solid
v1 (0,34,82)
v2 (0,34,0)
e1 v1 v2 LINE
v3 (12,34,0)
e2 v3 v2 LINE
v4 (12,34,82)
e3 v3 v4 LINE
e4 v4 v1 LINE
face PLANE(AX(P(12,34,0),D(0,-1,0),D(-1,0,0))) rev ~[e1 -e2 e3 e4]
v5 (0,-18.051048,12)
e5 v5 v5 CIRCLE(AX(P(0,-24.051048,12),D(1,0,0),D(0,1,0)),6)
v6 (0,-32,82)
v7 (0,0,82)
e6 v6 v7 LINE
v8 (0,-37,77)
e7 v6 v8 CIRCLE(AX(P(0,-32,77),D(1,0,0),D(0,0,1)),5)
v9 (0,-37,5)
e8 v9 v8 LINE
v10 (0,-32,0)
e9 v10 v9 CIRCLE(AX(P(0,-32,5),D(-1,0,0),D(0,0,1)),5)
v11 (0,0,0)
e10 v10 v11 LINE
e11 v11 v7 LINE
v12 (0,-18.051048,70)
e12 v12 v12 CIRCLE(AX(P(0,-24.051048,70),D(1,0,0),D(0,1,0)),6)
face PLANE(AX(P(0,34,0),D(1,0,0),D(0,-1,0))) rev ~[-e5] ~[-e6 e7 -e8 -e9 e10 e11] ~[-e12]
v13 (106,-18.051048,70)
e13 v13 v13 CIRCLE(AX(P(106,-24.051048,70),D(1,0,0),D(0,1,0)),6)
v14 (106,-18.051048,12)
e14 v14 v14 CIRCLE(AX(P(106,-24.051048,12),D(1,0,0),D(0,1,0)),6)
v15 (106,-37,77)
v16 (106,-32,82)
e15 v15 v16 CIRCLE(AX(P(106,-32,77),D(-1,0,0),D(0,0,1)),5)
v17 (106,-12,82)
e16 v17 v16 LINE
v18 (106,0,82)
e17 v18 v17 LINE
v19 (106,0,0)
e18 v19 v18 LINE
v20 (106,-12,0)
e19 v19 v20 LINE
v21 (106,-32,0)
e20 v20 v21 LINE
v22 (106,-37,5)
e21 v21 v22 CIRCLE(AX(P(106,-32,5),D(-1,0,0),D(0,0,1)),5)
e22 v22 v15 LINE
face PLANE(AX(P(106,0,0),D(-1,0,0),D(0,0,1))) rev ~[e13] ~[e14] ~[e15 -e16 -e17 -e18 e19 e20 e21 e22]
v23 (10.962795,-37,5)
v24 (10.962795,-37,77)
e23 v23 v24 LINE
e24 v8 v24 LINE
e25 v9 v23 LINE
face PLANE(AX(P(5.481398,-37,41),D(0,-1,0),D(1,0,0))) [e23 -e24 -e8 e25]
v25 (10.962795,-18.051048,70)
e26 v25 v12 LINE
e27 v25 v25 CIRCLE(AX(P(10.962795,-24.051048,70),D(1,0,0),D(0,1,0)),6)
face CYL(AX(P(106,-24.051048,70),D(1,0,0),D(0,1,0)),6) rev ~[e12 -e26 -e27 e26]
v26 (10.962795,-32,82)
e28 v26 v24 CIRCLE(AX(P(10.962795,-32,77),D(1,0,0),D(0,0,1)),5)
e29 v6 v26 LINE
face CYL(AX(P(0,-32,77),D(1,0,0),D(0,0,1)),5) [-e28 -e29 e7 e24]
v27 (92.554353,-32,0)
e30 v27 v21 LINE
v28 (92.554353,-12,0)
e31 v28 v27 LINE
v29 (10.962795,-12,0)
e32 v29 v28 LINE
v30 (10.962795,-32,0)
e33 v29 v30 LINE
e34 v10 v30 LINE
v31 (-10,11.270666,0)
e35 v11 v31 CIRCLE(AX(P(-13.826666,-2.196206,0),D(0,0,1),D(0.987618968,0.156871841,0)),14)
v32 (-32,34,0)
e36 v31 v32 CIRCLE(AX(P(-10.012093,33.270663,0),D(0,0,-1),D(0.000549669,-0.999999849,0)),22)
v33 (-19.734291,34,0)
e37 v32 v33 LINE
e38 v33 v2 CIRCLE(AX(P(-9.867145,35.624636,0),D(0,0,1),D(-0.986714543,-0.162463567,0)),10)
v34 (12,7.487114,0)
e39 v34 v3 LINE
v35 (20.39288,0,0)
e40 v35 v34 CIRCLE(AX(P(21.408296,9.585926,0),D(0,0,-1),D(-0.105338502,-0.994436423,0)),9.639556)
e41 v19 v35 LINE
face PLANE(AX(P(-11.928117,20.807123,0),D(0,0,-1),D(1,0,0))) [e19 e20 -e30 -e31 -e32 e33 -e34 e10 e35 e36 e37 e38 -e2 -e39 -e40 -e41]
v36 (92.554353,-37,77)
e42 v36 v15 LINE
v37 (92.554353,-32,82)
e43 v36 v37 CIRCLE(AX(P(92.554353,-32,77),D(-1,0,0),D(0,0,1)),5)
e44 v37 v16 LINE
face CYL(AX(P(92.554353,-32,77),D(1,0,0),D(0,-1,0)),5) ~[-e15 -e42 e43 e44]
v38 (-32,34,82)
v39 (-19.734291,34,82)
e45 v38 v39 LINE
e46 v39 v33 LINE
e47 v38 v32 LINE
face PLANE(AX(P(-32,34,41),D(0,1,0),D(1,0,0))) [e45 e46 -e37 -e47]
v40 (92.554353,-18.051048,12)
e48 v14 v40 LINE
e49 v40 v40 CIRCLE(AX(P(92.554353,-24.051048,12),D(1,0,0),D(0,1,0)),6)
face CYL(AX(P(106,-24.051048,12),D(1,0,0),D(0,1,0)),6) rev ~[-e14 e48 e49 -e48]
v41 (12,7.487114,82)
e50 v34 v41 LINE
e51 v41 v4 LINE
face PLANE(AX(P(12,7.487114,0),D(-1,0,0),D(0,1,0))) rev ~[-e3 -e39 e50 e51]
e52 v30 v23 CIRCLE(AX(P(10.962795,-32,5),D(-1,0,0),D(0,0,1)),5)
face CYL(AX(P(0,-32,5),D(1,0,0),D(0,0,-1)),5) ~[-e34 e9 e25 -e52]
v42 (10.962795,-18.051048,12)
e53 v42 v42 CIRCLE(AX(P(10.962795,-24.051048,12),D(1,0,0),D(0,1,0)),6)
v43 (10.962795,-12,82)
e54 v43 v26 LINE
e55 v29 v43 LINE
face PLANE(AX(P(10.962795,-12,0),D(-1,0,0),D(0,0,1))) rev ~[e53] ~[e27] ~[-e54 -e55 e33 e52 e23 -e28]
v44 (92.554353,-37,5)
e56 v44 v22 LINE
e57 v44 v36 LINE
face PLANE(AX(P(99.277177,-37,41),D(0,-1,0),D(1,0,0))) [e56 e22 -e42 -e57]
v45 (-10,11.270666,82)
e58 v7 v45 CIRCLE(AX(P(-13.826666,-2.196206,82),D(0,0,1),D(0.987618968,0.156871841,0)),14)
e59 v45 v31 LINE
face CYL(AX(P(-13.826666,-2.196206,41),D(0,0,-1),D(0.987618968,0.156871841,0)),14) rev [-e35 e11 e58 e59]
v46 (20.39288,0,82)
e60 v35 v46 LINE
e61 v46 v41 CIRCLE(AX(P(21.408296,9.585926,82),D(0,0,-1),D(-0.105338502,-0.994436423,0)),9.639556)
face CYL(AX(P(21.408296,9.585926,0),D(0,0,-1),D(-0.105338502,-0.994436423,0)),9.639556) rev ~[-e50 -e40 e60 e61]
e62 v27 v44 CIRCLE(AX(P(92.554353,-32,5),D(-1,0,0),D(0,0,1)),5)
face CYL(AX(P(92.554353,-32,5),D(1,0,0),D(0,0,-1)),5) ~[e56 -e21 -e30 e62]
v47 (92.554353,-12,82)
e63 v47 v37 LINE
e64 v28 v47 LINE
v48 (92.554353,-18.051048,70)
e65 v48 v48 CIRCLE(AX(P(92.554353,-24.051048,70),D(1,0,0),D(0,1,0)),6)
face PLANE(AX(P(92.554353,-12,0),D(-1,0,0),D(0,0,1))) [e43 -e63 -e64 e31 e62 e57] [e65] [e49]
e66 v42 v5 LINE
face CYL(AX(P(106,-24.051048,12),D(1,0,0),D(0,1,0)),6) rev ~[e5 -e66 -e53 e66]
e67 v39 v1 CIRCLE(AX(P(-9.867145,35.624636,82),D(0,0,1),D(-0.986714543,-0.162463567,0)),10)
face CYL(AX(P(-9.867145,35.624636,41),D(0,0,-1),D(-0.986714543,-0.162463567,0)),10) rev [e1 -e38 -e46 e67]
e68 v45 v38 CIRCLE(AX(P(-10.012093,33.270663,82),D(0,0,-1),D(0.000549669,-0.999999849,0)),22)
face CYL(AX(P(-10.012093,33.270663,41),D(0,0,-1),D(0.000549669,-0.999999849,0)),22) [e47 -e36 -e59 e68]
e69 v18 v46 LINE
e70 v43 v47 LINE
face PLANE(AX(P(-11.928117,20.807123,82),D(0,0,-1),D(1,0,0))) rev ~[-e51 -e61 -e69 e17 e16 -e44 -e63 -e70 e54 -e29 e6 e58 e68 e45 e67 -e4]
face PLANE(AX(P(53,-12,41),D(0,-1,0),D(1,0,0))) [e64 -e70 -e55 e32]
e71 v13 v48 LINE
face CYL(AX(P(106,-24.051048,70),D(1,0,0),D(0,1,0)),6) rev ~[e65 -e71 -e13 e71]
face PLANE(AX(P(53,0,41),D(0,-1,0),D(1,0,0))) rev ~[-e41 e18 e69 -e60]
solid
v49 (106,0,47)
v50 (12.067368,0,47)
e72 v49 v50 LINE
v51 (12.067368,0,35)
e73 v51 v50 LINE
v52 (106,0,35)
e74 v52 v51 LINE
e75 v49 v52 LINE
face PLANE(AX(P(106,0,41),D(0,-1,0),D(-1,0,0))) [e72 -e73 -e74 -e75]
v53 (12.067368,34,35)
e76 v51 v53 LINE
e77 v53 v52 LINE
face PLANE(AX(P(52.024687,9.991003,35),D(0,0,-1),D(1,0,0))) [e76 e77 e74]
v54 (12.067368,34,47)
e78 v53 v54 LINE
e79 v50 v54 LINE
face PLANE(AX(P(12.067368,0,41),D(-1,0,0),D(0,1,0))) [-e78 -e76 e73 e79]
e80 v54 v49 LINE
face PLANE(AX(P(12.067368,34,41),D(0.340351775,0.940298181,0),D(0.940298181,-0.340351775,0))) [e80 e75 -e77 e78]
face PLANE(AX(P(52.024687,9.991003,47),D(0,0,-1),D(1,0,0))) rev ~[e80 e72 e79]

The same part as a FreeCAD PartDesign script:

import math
import FreeCAD as App
import Part
import Sketcher
from FreeCAD import Vector
Q = App.Units.Quantity


def edges_at(feature, points):
    """Names of the edges that pass closest to the given points."""
    edges = feature.Shape.Edges
    near = lambda p: min(range(len(edges)), key=lambda i: edges[i].distToShape(Part.Vertex(*p))[0])
    return sorted({f"Edge{near(p) + 1}" for p in points})


def add_polygon(sketch, points):
    """Adds a closed chain of lines whose ends are joined by coincident constraints."""
    first, n = sketch.GeometryCount, len(points)
    for a, b in zip(points, points[1:] + points[:1]):
        sketch.addGeometry(Part.LineSegment(App.Vector(*a, 0), App.Vector(*b, 0)), False)
    for i in range(n):
        sketch.addConstraint(Sketcher.Constraint("Coincident", first + i, 2, first + (i + 1) % n, 1))

doc = App.newDocument("Part")
body = doc.addObject("PartDesign::Body", "Body")

# Sketch on XZ plane
sketch1 = body.newObject("Sketcher::SketchObject", "Sketch")
sketch1.AttachmentSupport = (doc.getObject("XZ_Plane"), [""])
sketch1.MapMode = "FlatFace"
add_polygon(sketch1, [(0, 82), (0, 0), (106, 0), (106, 82)])  # lines 0-3
sketch1.addConstraint(Sketcher.Constraint("Vertical", 0))
sketch1.addConstraint(Sketcher.Constraint("Horizontal", 1))
sketch1.addConstraint(Sketcher.Constraint("Vertical", 2))
sketch1.addConstraint(Sketcher.Constraint("Horizontal", 3))
sketch1.addConstraint(Sketcher.Constraint("Coincident", 0, 2, -1, 1))
sketch1.addConstraint(Sketcher.Constraint("DistanceX", 1, 1, 1, 2, Q("106 mm")))
sketch1.addConstraint(Sketcher.Constraint("DistanceY", 0, 2, 0, 1, Q("82 mm")))
pad1 = body.newObject("PartDesign::Pad", "Pad")
pad1.Profile = sketch1
pad1.Length = 12

# Sketch on XZ plane
sketch2 = body.newObject("Sketcher::SketchObject", "Sketch001")
sketch2.AttachmentSupport = (doc.getObject("XZ_Plane"), [""])
sketch2.MapMode = "FlatFace"
sketch2.AttachmentOffset = App.Placement(Vector(0, 0, 12), App.Rotation())
add_polygon(sketch2, [(0, 82), (0, 0), (10.962795, 0), (10.962795, 82)])  # lines 0-3
add_polygon(sketch2, [(92.554353, 82), (92.554353, 0), (106, 0), (106, 82)])  # lines 4-7
sketch2.addConstraint(Sketcher.Constraint("Vertical", 0))
sketch2.addConstraint(Sketcher.Constraint("Horizontal", 1))
sketch2.addConstraint(Sketcher.Constraint("Vertical", 2))
sketch2.addConstraint(Sketcher.Constraint("Horizontal", 3))
sketch2.addConstraint(Sketcher.Constraint("Vertical", 4))
sketch2.addConstraint(Sketcher.Constraint("Horizontal", 5))
sketch2.addConstraint(Sketcher.Constraint("Vertical", 6))
sketch2.addConstraint(Sketcher.Constraint("Horizontal", 7))
sketch2.addConstraint(Sketcher.Constraint("Coincident", 0, 2, -1, 1))
sketch2.addConstraint(Sketcher.Constraint("PointOnObject", 4, 2, -1))
sketch2.addConstraint(Sketcher.Constraint("Horizontal", 3, 2, 6, 2))
sketch2.addConstraint(Sketcher.Constraint("DistanceY", 0, 2, 0, 1, Q("82 mm")))
sketch2.addConstraint(Sketcher.Constraint("DistanceX", -1, 1, 5, 2, Q("106 mm")))
sketch2.addConstraint(Sketcher.Constraint("DistanceX", 1, 1, 1, 2, Q("10.962795 mm")))
sketch2.addConstraint(Sketcher.Constraint("DistanceX", 5, 1, 5, 2, Q("13.445647 mm")))
pad2 = body.newObject("PartDesign::Pad", "Pad001")
pad2.Profile = sketch2
pad2.Length = 25
doc.recompute()

fillet = body.newObject("PartDesign::Fillet", "Fillet")
fillet.Base = (pad2, edges_at(pad2, [
    (99.277, -37, 0),
    (99.277, -37, 82),
    (5.481, -37, 82),
    (5.481, -37, 0),
]))
fillet.Radius = 5

# Sketch on YZ plane
sketch3 = body.newObject("Sketcher::SketchObject", "Sketch002")
sketch3.AttachmentSupport = (doc.getObject("YZ_Plane"), [""])
sketch3.MapMode = "FlatFace"
sketch3.AttachmentOffset = App.Placement(Vector(0, 0, 106), App.Rotation())
sketch3.addGeometry(Part.Circle(Vector(-24.051048, 12, 0), Vector(0, 0, 1), 6), False)
sketch3.addGeometry(Part.Circle(Vector(-24.051048, 70, 0), Vector(0, 0, 1), 6), False)
sketch3.addConstraint(Sketcher.Constraint("Equal", 0, 1))
sketch3.addConstraint(Sketcher.Constraint("Vertical", 0, 3, 1, 3))
sketch3.addConstraint(Sketcher.Constraint("Diameter", 0, Q("12 mm")))
sketch3.addConstraint(Sketcher.Constraint("DistanceY", -1, 1, 0, 3, Q("12 mm")))
sketch3.addConstraint(Sketcher.Constraint("DistanceY", -1, 1, 1, 3, Q("70 mm")))
sketch3.addConstraint(Sketcher.Constraint("DistanceX", 0, 3, -1, 1, Q("24.051048 mm")))
pocket1 = body.newObject("PartDesign::Pocket", "Pocket")
pocket1.Profile = sketch3
pocket1.Length = 130
body2 = doc.addObject("PartDesign::Body", "Body001")

# Sketch on XY plane
sketch4 = body2.newObject("Sketcher::SketchObject", "Sketch003")
sketch4.AttachmentSupport = (doc.getObject("XY_Plane001"), [""])
sketch4.MapMode = "FlatFace"
sketch4.AttachmentOffset = App.Placement(Vector(0, 0, 41), App.Rotation())
add_polygon(sketch4, [(12.067368, 34), (106, 0), (12.067368, 0)])  # lines 0-2
sketch4.addConstraint(Sketcher.Constraint("Horizontal", 1))
sketch4.addConstraint(Sketcher.Constraint("Vertical", 2))
sketch4.addConstraint(Sketcher.Constraint("PointOnObject", 0, 2, -1))
sketch4.addConstraint(Sketcher.Constraint("DistanceY", 2, 1, 2, 2, Q("34 mm")))
sketch4.addConstraint(Sketcher.Constraint("DistanceX", -1, 1, 0, 2, Q("106 mm")))
sketch4.addConstraint(Sketcher.Constraint("DistanceX", 1, 2, 1, 1, Q("93.932632 mm")))
pad3 = body2.newObject("PartDesign::Pad", "Pad002")
pad3.Profile = sketch4
pad3.Type = "TwoLengths"
pad3.Length = 6
pad3.Length2 = 6
pad3.Reversed = True
body3 = doc.addObject("PartDesign::Body", "Body002")
body3.AllowCompound = True

# Sketch on XY plane
sketch5 = body3.newObject("Sketcher::SketchObject", "Sketch004")
sketch5.AttachmentSupport = (doc.getObject("XY_Plane002"), [""])
sketch5.MapMode = "FlatFace"
sketch5.addGeometry(Part.LineSegment(Vector(22.423713, 0, 0), Vector(20.39288, 0, 0)), False)
sketch5.addGeometry(Part.ArcOfCircle(Part.Circle(Vector(21.408296, 9.585926, 0), Vector(0, 0, 1), 9.639556), math.radians(-96.046669), math.radians(-83.953331)), False)
sketch5.addGeometry(Part.LineSegment(Vector(0, 34, 0), Vector(0, 0, 0)), False)
sketch5.addGeometry(Part.LineSegment(Vector(0, 0, 0), Vector(20.39288, 0, 0)), False)
sketch5.addGeometry(Part.ArcOfCircle(Part.Circle(Vector(21.408296, 9.585926, 0), Vector(0, 0, 1), 9.639556), math.radians(-167.42431), math.radians(-96.046669)), False)
sketch5.addGeometry(Part.LineSegment(Vector(12, 7.487114, 0), Vector(12, 34, 0)), False)
sketch5.addGeometry(Part.LineSegment(Vector(12, 34, 0), Vector(0, 34, 0)), False)
sketch5.addConstraint(Sketcher.Constraint("Coincident", 0, 1, 1, 2))
sketch5.addConstraint(Sketcher.Constraint("Coincident", 1, 1, 0, 2))
sketch5.addConstraint(Sketcher.Constraint("Coincident", 2, 2, 3, 1))
sketch5.addConstraint(Sketcher.Constraint("Coincident", 3, 2, 4, 2))
sketch5.addConstraint(Sketcher.Constraint("Coincident", 4, 1, 5, 1))
sketch5.addConstraint(Sketcher.Constraint("Coincident", 5, 2, 6, 1))
sketch5.addConstraint(Sketcher.Constraint("Coincident", 6, 2, 2, 1))
sketch5.addConstraint(Sketcher.Constraint("Horizontal", 0))
sketch5.addConstraint(Sketcher.Constraint("Vertical", 2))
sketch5.addConstraint(Sketcher.Constraint("Horizontal", 3))
sketch5.addConstraint(Sketcher.Constraint("Vertical", 5))
sketch5.addConstraint(Sketcher.Constraint("Horizontal", 6))
sketch5.addConstraint(Sketcher.Constraint("Coincident", 2, 2, -1, 1))
sketch5.addConstraint(Sketcher.Constraint("Coincident", 4, 3, 1, 3))
sketch5.addConstraint(Sketcher.Constraint("Coincident", 3, 2, 1, 1))
sketch5.addConstraint(Sketcher.Constraint("DistanceX", 6, 2, 6, 1, Q("12 mm")))
sketch5.addConstraint(Sketcher.Constraint("DistanceY", 2, 2, 2, 1, Q("34 mm")))
sketch5.addConstraint(Sketcher.Constraint("Radius", 1, Q("9.639556 mm")))
sketch5.addConstraint(Sketcher.Constraint("DistanceX", 3, 1, 3, 2, Q("20.39288 mm")))
sketch5.addConstraint(Sketcher.Constraint("DistanceX", 0, 2, 0, 1, Q("2.030833 mm")))
pad4 = body3.newObject("PartDesign::Pad", "Pad003")
pad4.Profile = sketch5
pad4.Length = 82
doc.recompute()

boolean = body.newObject("PartDesign::Boolean", "Boolean")
boolean.Type = "Fuse"
boolean.addObjects([body3])

# Sketch on XY plane
sketch6 = body.newObject("Sketcher::SketchObject", "Sketch005")
sketch6.AttachmentSupport = (doc.getObject("XY_Plane"), [""])
sketch6.MapMode = "FlatFace"
sketch6.addGeometry(Part.LineSegment(Vector(22.423713, 0, 0), Vector(20.39288, 0, 0)), False)
sketch6.addGeometry(Part.ArcOfCircle(Part.Circle(Vector(21.408296, 9.585926, 0), Vector(0, 0, 1), 9.639556), math.radians(-96.046669), math.radians(-83.953331)), False)
sketch6.addGeometry(Part.LineSegment(Vector(0, 34, 0), Vector(0, 0, 0)), False)
sketch6.addGeometry(Part.LineSegment(Vector(0, 0, 0), Vector(20.39288, 0, 0)), False)
sketch6.addGeometry(Part.ArcOfCircle(Part.Circle(Vector(21.408296, 9.585926, 0), Vector(0, 0, 1), 9.639556), math.radians(-167.42431), math.radians(-96.046669)), False)
sketch6.addGeometry(Part.LineSegment(Vector(12, 7.487114, 0), Vector(12, 34, 0)), False)
sketch6.addGeometry(Part.LineSegment(Vector(12, 34, 0), Vector(0, 34, 0)), False)
sketch6.addConstraint(Sketcher.Constraint("Coincident", 0, 1, 1, 2))
sketch6.addConstraint(Sketcher.Constraint("Coincident", 1, 1, 0, 2))
sketch6.addConstraint(Sketcher.Constraint("Coincident", 2, 2, 3, 1))
sketch6.addConstraint(Sketcher.Constraint("Coincident", 3, 2, 4, 2))
sketch6.addConstraint(Sketcher.Constraint("Coincident", 4, 1, 5, 1))
sketch6.addConstraint(Sketcher.Constraint("Coincident", 5, 2, 6, 1))
sketch6.addConstraint(Sketcher.Constraint("Coincident", 6, 2, 2, 1))
sketch6.addConstraint(Sketcher.Constraint("Horizontal", 0))
sketch6.addConstraint(Sketcher.Constraint("Vertical", 2))
sketch6.addConstraint(Sketcher.Constraint("Horizontal", 3))
sketch6.addConstraint(Sketcher.Constraint("Vertical", 5))
sketch6.addConstraint(Sketcher.Constraint("Horizontal", 6))
sketch6.addConstraint(Sketcher.Constraint("Coincident", 2, 2, -1, 1))
sketch6.addConstraint(Sketcher.Constraint("Coincident", 4, 3, 1, 3))
sketch6.addConstraint(Sketcher.Constraint("Coincident", 3, 2, 1, 1))
sketch6.addConstraint(Sketcher.Constraint("DistanceX", 6, 2, 6, 1, Q("12 mm")))
sketch6.addConstraint(Sketcher.Constraint("DistanceY", 2, 2, 2, 1, Q("34 mm")))
sketch6.addConstraint(Sketcher.Constraint("Radius", 1, Q("9.639556 mm")))
sketch6.addConstraint(Sketcher.Constraint("DistanceX", 3, 1, 3, 2, Q("20.39288 mm")))
sketch6.addConstraint(Sketcher.Constraint("DistanceX", 0, 2, 0, 1, Q("2.030833 mm")))
pad5 = body.newObject("PartDesign::Pad", "Pad004")
pad5.Profile = sketch6
pad5.Length = 25

# Sketch on XY plane
sketch7 = body.newObject("Sketcher::SketchObject", "Sketch006")
sketch7.AttachmentSupport = (doc.getObject("XY_Plane"), [""])
sketch7.MapMode = "FlatFace"
sketch7.AttachmentOffset = App.Placement(Vector(0, 0, 41), App.Rotation())
sketch7.addGeometry(Part.ArcOfCircle(Part.Circle(Vector(-13.826666, -2.196206, 0), Vector(0, 0, 1), 14), math.radians(9.025373), math.radians(74.137288)), False)
sketch7.addGeometry(Part.ArcOfCircle(Part.Circle(Vector(-10.012093, 33.270663, 0), Vector(0, 0, 1), 22), math.radians(178.100199), math.radians(270.031494)), False)
sketch7.addGeometry(Part.LineSegment(Vector(-32, 34, 0), Vector(-19.734291, 34, 0)), False)
sketch7.addGeometry(Part.ArcOfCircle(Part.Circle(Vector(-9.867145, 35.624636, 0), Vector(0, 0, 1), 10), math.radians(-170.650081), math.radians(-9.349919)), False)
sketch7.addGeometry(Part.LineSegment(Vector(0, 34, 0), Vector(0, 0, 0)), False)
sketch7.addConstraint(Sketcher.Constraint("Coincident", 0, 2, 1, 2))
sketch7.addConstraint(Sketcher.Constraint("Coincident", 1, 1, 2, 1))
sketch7.addConstraint(Sketcher.Constraint("Coincident", 2, 2, 3, 1))
sketch7.addConstraint(Sketcher.Constraint("Coincident", 3, 2, 4, 1))
sketch7.addConstraint(Sketcher.Constraint("Coincident", 4, 2, 0, 1))
sketch7.addConstraint(Sketcher.Constraint("Horizontal", 2))
sketch7.addConstraint(Sketcher.Constraint("Vertical", 4))
sketch7.addConstraint(Sketcher.Constraint("Coincident", 4, 2, -1, 1))
sketch7.addConstraint(Sketcher.Constraint("Horizontal", 2, 2, 3, 2))
sketch7.addConstraint(Sketcher.Constraint("Radius", 0, Q("14 mm")))
sketch7.addConstraint(Sketcher.Constraint("Radius", 1, Q("22 mm")))
sketch7.addConstraint(Sketcher.Constraint("Radius", 3, Q("10 mm")))
sketch7.addConstraint(Sketcher.Constraint("DistanceY", 4, 2, 4, 1, Q("34 mm")))
sketch7.addConstraint(Sketcher.Constraint("DistanceX", 0, 2, -1, 1, Q("10 mm")))
sketch7.addConstraint(Sketcher.Constraint("DistanceX", 1, 1, -1, 1, Q("32 mm")))
sketch7.addConstraint(Sketcher.Constraint("DistanceX", 2, 1, 2, 2, Q("12.265709 mm")))
sketch7.addConstraint(Sketcher.Constraint("DistanceX", 2, 2, 1, 3, Q("9.722198 mm")))
pad6 = body.newObject("PartDesign::Pad", "Pad005")
pad6.Profile = sketch7
pad6.Type = "TwoLengths"
pad6.Length = 41
pad6.Length2 = 41
pad6.Reversed = True

doc.recompute()
